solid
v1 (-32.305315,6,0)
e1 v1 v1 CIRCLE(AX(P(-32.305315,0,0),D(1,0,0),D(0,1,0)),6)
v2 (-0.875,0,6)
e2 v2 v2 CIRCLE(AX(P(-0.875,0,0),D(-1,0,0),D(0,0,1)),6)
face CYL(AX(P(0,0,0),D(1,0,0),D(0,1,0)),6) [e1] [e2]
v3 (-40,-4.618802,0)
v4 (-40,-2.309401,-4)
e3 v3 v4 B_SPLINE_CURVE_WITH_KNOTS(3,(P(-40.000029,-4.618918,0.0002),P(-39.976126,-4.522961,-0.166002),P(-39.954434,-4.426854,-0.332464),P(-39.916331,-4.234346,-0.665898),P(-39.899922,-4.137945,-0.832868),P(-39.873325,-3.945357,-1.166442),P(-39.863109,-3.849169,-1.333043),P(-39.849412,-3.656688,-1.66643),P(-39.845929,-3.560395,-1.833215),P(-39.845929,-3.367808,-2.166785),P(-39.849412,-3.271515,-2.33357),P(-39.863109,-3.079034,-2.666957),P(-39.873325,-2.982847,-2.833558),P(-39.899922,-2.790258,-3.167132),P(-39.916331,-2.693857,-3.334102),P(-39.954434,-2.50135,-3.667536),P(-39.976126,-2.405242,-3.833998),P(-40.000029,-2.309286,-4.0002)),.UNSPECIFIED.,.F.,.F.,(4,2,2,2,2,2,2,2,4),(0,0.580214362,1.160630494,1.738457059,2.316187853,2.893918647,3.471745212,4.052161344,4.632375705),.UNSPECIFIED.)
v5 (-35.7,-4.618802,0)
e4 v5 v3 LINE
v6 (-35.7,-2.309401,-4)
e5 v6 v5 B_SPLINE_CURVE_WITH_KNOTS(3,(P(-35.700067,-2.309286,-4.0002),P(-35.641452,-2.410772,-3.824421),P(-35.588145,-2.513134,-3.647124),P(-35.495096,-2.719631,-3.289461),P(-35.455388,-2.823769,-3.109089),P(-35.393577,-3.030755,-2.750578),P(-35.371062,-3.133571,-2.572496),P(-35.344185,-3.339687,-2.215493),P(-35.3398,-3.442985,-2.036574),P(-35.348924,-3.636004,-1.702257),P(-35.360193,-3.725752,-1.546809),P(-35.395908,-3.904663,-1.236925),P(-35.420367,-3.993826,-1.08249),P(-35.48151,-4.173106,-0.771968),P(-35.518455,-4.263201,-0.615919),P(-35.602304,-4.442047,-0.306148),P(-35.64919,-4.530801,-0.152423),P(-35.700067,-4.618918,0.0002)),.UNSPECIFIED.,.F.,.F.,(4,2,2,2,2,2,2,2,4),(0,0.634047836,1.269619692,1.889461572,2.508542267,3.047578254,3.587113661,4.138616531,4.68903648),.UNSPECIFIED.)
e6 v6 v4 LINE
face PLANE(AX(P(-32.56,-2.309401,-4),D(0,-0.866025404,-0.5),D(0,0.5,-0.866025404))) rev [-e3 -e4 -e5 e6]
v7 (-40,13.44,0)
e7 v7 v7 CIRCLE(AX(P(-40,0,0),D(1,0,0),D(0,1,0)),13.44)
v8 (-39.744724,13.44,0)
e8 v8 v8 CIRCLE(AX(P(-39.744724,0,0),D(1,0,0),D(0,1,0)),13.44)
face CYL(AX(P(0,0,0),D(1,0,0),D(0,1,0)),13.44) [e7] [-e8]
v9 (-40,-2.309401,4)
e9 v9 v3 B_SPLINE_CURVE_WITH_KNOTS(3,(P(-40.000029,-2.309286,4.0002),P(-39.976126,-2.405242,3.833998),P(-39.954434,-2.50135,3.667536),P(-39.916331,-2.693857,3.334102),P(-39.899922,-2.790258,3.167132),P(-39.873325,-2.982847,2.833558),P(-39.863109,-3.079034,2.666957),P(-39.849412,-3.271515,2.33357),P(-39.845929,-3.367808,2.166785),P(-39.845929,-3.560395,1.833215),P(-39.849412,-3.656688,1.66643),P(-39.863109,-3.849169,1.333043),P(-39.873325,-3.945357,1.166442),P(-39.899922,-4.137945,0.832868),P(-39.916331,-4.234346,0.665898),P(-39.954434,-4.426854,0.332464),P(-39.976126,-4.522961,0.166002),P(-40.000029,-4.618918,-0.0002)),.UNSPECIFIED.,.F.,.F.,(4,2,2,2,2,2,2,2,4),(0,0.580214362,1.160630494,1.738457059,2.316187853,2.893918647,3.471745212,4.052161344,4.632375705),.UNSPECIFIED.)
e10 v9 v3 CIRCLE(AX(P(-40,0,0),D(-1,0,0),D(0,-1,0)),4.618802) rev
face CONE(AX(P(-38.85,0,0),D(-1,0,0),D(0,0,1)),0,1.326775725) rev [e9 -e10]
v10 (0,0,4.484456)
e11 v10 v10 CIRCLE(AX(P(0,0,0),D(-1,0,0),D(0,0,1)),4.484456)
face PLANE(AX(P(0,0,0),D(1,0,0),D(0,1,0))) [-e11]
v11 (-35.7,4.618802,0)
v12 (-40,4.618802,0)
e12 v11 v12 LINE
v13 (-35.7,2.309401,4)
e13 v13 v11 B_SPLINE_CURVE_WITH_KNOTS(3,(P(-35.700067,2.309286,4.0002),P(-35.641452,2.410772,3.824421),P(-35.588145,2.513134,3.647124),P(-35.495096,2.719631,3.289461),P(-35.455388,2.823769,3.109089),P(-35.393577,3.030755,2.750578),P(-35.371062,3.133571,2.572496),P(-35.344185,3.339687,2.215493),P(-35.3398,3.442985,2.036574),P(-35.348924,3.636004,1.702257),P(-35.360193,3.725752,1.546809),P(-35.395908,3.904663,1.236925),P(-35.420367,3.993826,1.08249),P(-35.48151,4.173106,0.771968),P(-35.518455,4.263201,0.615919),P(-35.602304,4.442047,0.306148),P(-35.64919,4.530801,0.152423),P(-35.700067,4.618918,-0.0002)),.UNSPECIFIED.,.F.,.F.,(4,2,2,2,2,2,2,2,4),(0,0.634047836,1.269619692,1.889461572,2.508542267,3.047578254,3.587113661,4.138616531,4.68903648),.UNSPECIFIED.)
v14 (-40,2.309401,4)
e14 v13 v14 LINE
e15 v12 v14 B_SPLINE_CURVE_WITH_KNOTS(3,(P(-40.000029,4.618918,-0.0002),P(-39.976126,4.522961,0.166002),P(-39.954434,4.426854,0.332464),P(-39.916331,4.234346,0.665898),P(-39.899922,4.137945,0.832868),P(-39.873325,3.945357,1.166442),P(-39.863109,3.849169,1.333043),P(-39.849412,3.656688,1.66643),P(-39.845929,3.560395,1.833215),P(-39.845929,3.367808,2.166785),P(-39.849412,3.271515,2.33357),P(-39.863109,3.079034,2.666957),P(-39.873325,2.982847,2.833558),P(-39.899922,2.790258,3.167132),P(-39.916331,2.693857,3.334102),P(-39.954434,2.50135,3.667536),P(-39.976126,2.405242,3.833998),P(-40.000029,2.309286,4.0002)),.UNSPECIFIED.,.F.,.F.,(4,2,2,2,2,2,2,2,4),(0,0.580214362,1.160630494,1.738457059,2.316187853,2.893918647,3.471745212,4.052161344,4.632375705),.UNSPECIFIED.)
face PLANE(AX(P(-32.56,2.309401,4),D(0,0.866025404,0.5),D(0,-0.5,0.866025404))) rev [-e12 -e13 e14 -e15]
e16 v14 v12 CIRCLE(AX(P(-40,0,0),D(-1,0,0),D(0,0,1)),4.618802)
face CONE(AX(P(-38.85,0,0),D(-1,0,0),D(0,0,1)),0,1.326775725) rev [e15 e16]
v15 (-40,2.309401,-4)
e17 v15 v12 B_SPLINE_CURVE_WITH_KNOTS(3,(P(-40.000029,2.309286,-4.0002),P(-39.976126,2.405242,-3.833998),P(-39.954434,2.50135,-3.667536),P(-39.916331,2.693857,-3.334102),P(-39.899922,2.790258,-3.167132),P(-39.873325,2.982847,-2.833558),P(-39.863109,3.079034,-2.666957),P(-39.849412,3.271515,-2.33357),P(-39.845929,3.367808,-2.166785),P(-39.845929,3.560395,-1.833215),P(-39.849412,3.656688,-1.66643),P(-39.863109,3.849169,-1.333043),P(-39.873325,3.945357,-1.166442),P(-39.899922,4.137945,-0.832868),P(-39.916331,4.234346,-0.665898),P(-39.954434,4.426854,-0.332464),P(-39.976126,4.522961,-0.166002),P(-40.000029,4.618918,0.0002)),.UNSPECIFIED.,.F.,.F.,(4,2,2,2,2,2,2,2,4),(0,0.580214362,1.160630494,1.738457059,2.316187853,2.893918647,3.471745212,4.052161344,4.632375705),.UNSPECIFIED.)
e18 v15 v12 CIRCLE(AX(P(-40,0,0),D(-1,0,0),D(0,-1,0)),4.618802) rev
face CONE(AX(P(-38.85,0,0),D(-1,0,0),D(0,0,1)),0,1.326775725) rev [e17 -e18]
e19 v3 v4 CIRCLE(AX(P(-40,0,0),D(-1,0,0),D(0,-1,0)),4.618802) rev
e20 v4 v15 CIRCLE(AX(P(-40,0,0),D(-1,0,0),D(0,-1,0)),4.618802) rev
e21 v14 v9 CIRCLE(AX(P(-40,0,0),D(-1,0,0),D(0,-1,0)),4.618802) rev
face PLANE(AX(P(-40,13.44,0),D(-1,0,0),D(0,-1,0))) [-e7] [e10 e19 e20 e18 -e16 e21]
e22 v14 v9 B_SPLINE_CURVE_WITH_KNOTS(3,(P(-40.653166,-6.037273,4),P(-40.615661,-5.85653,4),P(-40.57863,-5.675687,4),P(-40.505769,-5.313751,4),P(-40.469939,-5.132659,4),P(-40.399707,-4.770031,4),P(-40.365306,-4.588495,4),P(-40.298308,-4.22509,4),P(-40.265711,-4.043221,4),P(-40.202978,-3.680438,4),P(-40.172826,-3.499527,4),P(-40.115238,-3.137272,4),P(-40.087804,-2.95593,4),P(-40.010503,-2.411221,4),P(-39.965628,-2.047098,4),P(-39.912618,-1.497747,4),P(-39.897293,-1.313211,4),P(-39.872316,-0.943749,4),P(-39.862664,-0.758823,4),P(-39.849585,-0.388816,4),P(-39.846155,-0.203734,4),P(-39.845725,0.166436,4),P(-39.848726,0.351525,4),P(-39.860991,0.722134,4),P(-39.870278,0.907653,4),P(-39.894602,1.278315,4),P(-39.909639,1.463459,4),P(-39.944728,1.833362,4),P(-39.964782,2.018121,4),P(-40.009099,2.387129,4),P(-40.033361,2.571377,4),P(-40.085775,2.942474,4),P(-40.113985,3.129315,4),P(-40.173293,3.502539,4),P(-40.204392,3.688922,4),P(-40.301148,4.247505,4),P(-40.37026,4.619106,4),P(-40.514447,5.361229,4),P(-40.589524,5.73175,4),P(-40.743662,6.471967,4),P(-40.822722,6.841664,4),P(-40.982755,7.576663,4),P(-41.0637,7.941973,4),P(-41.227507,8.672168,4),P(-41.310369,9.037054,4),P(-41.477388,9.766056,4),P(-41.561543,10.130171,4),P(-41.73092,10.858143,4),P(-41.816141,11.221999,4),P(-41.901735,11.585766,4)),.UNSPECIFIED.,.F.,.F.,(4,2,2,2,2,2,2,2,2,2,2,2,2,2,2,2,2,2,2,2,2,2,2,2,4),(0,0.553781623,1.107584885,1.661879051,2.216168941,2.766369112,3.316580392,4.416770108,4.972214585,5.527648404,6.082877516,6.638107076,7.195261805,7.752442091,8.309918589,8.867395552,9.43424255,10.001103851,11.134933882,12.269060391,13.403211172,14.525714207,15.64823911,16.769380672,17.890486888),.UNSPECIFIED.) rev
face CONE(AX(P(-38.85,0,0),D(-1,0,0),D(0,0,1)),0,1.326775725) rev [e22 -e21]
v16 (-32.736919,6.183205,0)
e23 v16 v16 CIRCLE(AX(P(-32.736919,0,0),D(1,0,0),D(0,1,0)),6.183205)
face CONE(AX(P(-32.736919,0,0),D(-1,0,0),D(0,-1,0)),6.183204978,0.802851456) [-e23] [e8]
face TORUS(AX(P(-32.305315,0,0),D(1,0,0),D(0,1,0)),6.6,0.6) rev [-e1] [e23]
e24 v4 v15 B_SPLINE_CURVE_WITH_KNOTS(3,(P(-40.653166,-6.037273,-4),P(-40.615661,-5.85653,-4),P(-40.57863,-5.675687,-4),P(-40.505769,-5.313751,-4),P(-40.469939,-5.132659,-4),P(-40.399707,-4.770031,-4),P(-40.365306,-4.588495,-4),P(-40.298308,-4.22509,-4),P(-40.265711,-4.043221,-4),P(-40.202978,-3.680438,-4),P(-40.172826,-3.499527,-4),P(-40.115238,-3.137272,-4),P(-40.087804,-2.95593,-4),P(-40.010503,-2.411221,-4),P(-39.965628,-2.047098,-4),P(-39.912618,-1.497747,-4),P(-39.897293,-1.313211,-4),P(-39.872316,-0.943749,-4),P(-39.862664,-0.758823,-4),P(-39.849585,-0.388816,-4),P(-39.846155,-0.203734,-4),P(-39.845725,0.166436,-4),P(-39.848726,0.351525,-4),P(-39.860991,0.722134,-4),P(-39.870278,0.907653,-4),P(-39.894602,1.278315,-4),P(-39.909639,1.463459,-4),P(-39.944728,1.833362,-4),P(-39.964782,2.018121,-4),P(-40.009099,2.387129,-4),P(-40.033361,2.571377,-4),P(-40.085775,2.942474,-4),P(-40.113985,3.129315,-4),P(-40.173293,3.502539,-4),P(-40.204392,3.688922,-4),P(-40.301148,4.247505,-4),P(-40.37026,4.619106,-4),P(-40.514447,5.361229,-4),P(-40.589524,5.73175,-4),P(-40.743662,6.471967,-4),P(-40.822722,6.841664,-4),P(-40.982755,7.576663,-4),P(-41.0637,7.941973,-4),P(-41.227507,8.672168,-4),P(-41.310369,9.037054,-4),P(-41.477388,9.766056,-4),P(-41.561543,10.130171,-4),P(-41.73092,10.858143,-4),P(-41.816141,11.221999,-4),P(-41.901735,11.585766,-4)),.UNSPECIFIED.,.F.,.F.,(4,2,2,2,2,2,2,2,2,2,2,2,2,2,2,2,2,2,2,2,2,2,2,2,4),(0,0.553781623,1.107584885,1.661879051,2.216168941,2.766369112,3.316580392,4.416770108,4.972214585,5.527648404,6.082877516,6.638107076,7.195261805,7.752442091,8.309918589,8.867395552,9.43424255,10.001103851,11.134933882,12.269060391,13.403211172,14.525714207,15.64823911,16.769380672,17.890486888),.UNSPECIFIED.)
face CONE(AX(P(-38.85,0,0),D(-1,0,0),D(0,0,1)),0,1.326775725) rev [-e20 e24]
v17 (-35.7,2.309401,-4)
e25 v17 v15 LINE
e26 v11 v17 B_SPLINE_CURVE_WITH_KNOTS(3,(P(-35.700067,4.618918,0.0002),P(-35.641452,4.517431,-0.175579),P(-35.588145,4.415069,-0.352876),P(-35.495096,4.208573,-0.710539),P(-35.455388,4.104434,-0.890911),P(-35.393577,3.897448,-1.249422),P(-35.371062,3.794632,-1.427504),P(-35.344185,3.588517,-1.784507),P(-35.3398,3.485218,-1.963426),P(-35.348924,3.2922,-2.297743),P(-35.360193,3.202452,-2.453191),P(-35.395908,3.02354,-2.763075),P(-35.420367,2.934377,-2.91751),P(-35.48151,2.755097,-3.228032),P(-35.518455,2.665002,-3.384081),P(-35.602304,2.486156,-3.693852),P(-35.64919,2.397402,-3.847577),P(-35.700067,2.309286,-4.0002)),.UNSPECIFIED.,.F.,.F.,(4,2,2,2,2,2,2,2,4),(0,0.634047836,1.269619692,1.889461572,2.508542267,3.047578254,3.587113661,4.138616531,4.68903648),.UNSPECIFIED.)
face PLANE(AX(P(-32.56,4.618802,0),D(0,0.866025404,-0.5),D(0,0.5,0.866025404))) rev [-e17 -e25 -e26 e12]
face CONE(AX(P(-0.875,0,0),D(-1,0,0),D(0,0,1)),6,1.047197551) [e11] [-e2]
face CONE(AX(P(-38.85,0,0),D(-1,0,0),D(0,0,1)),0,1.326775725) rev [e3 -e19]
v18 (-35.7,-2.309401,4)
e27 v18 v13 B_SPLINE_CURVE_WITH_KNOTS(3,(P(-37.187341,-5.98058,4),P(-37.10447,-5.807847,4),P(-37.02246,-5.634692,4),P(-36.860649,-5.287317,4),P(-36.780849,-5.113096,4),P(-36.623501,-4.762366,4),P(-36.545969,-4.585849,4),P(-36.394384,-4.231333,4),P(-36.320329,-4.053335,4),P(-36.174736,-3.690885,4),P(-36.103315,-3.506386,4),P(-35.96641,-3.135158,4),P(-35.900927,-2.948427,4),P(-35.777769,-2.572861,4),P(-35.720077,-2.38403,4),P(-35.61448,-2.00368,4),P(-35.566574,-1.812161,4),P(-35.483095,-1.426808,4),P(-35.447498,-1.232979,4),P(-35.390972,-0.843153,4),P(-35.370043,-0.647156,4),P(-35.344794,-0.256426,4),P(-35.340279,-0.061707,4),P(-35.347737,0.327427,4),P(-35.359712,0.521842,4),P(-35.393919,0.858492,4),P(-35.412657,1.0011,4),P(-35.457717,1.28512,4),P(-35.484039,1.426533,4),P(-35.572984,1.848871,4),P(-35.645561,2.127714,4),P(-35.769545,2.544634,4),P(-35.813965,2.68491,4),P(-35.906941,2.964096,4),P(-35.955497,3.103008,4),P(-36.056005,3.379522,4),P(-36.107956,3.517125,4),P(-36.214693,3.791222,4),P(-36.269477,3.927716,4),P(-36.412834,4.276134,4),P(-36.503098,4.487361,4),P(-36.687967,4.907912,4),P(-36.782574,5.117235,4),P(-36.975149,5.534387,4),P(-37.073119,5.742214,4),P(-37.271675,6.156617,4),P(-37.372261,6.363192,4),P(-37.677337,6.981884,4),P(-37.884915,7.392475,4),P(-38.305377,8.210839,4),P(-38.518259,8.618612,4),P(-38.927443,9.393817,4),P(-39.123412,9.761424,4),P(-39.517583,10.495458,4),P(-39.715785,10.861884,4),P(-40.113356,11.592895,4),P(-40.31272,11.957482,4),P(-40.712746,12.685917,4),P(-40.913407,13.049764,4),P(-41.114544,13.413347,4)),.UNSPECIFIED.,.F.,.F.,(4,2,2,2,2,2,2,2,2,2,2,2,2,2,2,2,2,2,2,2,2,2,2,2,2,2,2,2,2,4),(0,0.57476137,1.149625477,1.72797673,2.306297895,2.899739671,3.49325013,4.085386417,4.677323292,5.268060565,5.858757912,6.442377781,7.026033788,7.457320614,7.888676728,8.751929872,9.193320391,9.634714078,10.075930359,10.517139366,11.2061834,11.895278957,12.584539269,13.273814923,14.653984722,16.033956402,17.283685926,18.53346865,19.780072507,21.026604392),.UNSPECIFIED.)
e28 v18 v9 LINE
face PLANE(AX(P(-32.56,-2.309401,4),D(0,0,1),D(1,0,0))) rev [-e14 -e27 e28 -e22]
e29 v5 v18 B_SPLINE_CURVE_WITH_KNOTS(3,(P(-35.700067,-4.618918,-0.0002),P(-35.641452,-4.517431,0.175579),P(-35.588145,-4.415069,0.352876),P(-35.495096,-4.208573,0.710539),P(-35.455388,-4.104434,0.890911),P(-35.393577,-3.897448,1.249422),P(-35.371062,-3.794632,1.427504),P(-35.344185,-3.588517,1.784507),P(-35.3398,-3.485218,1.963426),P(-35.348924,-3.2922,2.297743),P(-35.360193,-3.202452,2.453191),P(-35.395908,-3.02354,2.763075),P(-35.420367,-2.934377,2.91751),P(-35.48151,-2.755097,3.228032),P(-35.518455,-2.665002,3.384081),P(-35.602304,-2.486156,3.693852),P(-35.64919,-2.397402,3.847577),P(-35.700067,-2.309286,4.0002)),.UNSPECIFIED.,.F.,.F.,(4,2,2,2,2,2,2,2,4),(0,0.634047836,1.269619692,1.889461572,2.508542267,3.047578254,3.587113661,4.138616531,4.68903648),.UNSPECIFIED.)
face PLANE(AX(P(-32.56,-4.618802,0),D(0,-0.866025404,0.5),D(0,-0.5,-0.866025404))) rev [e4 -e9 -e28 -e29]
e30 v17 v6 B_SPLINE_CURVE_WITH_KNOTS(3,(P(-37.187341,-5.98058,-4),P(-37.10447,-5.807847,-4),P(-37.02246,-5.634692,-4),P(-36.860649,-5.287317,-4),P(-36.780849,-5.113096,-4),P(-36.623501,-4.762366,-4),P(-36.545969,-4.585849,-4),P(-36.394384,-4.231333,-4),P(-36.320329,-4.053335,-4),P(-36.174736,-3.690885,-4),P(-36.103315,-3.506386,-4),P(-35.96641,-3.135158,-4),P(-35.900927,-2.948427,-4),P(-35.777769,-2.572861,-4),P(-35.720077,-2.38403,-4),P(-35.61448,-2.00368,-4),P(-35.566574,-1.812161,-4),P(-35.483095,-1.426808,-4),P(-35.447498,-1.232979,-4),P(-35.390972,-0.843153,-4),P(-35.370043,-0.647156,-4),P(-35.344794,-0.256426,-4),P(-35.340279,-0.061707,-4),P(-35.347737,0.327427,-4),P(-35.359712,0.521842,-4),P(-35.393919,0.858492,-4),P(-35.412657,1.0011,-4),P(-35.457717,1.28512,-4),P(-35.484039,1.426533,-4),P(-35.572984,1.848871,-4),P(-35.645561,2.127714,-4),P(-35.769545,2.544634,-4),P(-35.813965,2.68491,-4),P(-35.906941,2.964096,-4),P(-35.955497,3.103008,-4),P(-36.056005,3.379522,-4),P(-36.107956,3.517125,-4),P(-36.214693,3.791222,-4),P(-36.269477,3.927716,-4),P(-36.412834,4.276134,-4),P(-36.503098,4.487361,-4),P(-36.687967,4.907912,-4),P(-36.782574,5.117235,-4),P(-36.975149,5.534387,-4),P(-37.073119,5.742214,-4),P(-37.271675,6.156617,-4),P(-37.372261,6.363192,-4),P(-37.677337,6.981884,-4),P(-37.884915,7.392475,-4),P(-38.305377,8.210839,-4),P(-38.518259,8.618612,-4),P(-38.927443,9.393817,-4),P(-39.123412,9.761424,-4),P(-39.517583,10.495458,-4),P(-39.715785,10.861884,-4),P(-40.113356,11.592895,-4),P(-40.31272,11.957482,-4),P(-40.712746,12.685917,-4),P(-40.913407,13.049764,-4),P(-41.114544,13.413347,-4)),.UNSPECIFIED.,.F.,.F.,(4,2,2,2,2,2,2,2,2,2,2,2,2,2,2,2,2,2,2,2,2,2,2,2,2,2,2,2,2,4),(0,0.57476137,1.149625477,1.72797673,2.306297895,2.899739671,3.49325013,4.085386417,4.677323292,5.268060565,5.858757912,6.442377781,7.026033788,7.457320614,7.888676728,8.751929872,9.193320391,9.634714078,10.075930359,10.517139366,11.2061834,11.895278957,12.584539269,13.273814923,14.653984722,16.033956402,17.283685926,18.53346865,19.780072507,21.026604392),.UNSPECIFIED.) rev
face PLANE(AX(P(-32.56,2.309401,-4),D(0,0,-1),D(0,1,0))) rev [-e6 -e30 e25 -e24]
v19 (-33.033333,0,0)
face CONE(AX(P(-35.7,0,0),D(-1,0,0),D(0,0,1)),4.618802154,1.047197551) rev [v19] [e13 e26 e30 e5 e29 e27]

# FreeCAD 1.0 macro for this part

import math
import FreeCAD as App
import Part
import Sketcher

V = App.Vector
Q = App.Units.Quantity

doc = App.newDocument("Part")
body = doc.addObject("PartDesign::Body", "Body")

sketch1 = body.newObject("Sketcher::SketchObject", "Sketch")
sketch1.AttachmentSupport = (doc.getObject("XY_Plane"), [""])
sketch1.MapMode = "FlatFace"
sketch1.addGeometry([
    Part.LineSegment(V(0, 6, 0), V(-32.31, 6, 0)),
    Part.ArcOfCircle(Part.Circle(V(-32.31, 6.6, 0), V(0, 0, 1), 0.6), math.radians(-136), math.radians(-90)),
    Part.LineSegment(V(-32.74, 6.18, 0), V(-39.74, 13.44, 0)),
    Part.LineSegment(V(-39.74, 13.44, 0), V(-40, 13.44, 0)),
    Part.LineSegment(V(-40, 13.44, 0), V(-40, 0, 0)),
    Part.LineSegment(V(-40, 0, 0), V(0, 0, 0)),
    Part.LineSegment(V(0, 0, 0), V(0, 6, 0)),
], False)
sketch1.addConstraint([
    Sketcher.Constraint("Tangent", 0, 2, 1, 2),
    Sketcher.Constraint("Tangent", 1, 1, 2, 1),
    Sketcher.Constraint("Coincident", 2, 2, 3, 1),
    Sketcher.Constraint("Coincident", 3, 2, 4, 1),
    Sketcher.Constraint("Coincident", 4, 2, 5, 1),
    Sketcher.Constraint("Coincident", 5, 2, 6, 1),
    Sketcher.Constraint("Coincident", 6, 2, 0, 1),
    Sketcher.Constraint("Horizontal", 0),
    Sketcher.Constraint("Horizontal", 3),
    Sketcher.Constraint("Vertical", 4),
    Sketcher.Constraint("Horizontal", 5),
    Sketcher.Constraint("Vertical", 6),
    Sketcher.Constraint("Coincident", 5, 2, -1, 1),
    Sketcher.Constraint("Radius", 1, Q("0.6 mm")),
    Sketcher.Constraint("DistanceX", 5, 1, 5, 2, Q("40 mm")),
    Sketcher.Constraint("DistanceY", 6, 1, 6, 2, Q("6 mm")),
    Sketcher.Constraint("Angle", 2, Q("134 deg")),
    Sketcher.Constraint("DistanceY", 4, 2, 4, 1, Q("13.44 mm")),
    Sketcher.Constraint("DistanceX", 0, 2, 0, 1, Q("32.305315 mm")),
])
revolution = body.newObject("PartDesign::Revolution", "Revolution")
revolution.Profile = sketch1
revolution.ReferenceAxis = (sketch1, ["H_Axis"])
revolution.Angle = 360

sketch2 = body.newObject("Sketcher::SketchObject", "Sketch001")
sketch2.AttachmentSupport = (doc.getObject("YZ_Plane"), [""])
sketch2.MapMode = "FlatFace"
sketch2.AttachmentOffset = App.Placement(V(0, 0, -40), App.Rotation())
sketch2.addGeometry([
    Part.LineSegment(V(4.6, 0, 0), V(2.3, -4, 0)),
    Part.LineSegment(V(2.3, -4, 0), V(-2.3, -4, 0)),
    Part.LineSegment(V(-2.3, -4, 0), V(-4.6, 0, 0)),
    Part.LineSegment(V(-4.6, 0, 0), V(-2.3, 4, 0)),
    Part.LineSegment(V(-2.3, 4, 0), V(2.3, 4, 0)),
    Part.LineSegment(V(2.3, 4, 0), V(4.6, 0, 0)),
], False)
sketch2.addConstraint([
    Sketcher.Constraint("Coincident", 0, 2, 1, 1),
    Sketcher.Constraint("Coincident", 1, 2, 2, 1),
    Sketcher.Constraint("Coincident", 2, 2, 3, 1),
    Sketcher.Constraint("Coincident", 3, 2, 4, 1),
    Sketcher.Constraint("Coincident", 4, 2, 5, 1),
    Sketcher.Constraint("Coincident", 5, 2, 0, 1),
    Sketcher.Constraint("Horizontal", 1),
    Sketcher.Constraint("Horizontal", 4),
    Sketcher.Constraint("Symmetric", 0, 2, 3, 2, -1, 1),
    Sketcher.Constraint("Symmetric", 2, 2, 5, 2, -1, 1),
    Sketcher.Constraint("PointOnObject", 2, 2, -1),
    Sketcher.Constraint("Parallel", 2, 5),
    Sketcher.Constraint("Vertical", 1, 2, 3, 2),
    Sketcher.Constraint("Angle", 0, Q("-120 deg")),
    Sketcher.Constraint("DistanceY", 0, 2, -1, 1, Q("4 mm")),
    Sketcher.Constraint("DistanceX", -1, 1, 0, 2, Q("2.309401 mm")),
])
pocket1 = body.newObject("PartDesign::Pocket", "Pocket")
pocket1.Profile = sketch2
pocket1.Length = 7.44
pocket1.Reversed = True

sketch3 = body.newObject("Sketcher::SketchObject", "Sketch002")
sketch3.AttachmentSupport = (doc.getObject("XY_Plane"), [""])
sketch3.MapMode = "FlatFace"
sketch3.addGeometry([
    Part.LineSegment(V(-35.7, 4.6, 0), V(-33, 0, 0)),
    Part.LineSegment(V(-33, 0, 0), V(-31.4, 0, 0)),
    Part.LineSegment(V(-31.4, 0, 0), V(-31.4, 4.6, 0)),
    Part.LineSegment(V(-31.4, 4.6, 0), V(-35.7, 4.6, 0)),
], False)
sketch3.addConstraint([
    Sketcher.Constraint("Coincident", 0, 2, 1, 1),
    Sketcher.Constraint("Coincident", 1, 2, 2, 1),
    Sketcher.Constraint("Coincident", 2, 2, 3, 1),
    Sketcher.Constraint("Coincident", 3, 2, 0, 1),
    Sketcher.Constraint("Horizontal", 1),
    Sketcher.Constraint("Vertical", 2),
    Sketcher.Constraint("Horizontal", 3),
    Sketcher.Constraint("PointOnObject", 0, 2, -1),
    Sketcher.Constraint("Angle", 0, Q("-60 deg")),
    Sketcher.Constraint("DistanceX", 3, 2, 3, 1, Q("4.29 mm")),
    Sketcher.Constraint("DistanceX", 3, 2, -1, 1, Q("35.7 mm")),
    Sketcher.Constraint("DistanceX", 1, 1, 1, 2, Q("1.623333 mm")),
])
revolution2 = body.newObject("PartDesign::Revolution", "Revolution001")
revolution2.Profile = sketch3
revolution2.ReferenceAxis = (sketch3, ["H_Axis"])
revolution2.Angle = 360

sketch4 = body.newObject("Sketcher::SketchObject", "Sketch003")
sketch4.AttachmentSupport = (doc.getObject("XY_Plane"), [""])
sketch4.MapMode = "FlatFace"
sketch4.addGeometry([
    Part.LineSegment(V(-40, 4.6, 0), V(-40, 0, 0)),
    Part.LineSegment(V(-40, 0, 0), V(-38.9, 0, 0)),
    Part.LineSegment(V(-38.9, 0, 0), V(-40, 4.6, 0)),
], False)
sketch4.addConstraint([
    Sketcher.Constraint("Coincident", 0, 2, 1, 1),
    Sketcher.Constraint("Coincident", 1, 2, 2, 1),
    Sketcher.Constraint("Coincident", 2, 2, 0, 1),
    Sketcher.Constraint("Vertical", 0),
    Sketcher.Constraint("Horizontal", 1),
    Sketcher.Constraint("PointOnObject", 0, 2, -1),
    Sketcher.Constraint("DistanceX", 0, 2, -1, 1, Q("40 mm")),
    Sketcher.Constraint("DistanceX", 1, 1, 1, 2, Q("1.15 mm")),
    Sketcher.Constraint("DistanceY", 0, 2, 0, 1, Q("4.618802 mm")),
])
groove = body.newObject("PartDesign::Groove", "Groove")
groove.Profile = sketch4
groove.ReferenceAxis = (sketch4, ["H_Axis"])
groove.Angle = 360

sketch5 = body.newObject("Sketcher::SketchObject", "Sketch004")
sketch5.AttachmentSupport = (doc.getObject("XY_Plane"), [""])
sketch5.MapMode = "FlatFace"
sketch5.addGeometry([
    Part.LineSegment(V(-0.9, 6, 0), V(0, 4.5, 0)),
    Part.LineSegment(V(0, 4.5, 0), V(0.9, 6, 0)),
    Part.LineSegment(V(0.9, 6, 0), V(-0.9, 6, 0)),
], False)
sketch5.addConstraint([
    Sketcher.Constraint("Coincident", 0, 2, 1, 1),
    Sketcher.Constraint("Coincident", 1, 2, 2, 1),
    Sketcher.Constraint("Coincident", 2, 2, 0, 1),
    Sketcher.Constraint("Horizontal", 2),
    Sketcher.Constraint("PointOnObject", 0, 2, -2),
    Sketcher.Constraint("Equal", 0, 1),
    Sketcher.Constraint("Angle", 0, Q("-60 deg")),
    Sketcher.Constraint("DistanceY", -1, 1, 1, 2, Q("6 mm")),
    Sketcher.Constraint("DistanceX", 2, 2, 2, 1, Q("1.75 mm")),
])
groove2 = body.newObject("PartDesign::Groove", "Groove001")
groove2.Profile = sketch5
groove2.ReferenceAxis = (sketch5, ["H_Axis"])
groove2.Angle = 360

doc.recompute()
